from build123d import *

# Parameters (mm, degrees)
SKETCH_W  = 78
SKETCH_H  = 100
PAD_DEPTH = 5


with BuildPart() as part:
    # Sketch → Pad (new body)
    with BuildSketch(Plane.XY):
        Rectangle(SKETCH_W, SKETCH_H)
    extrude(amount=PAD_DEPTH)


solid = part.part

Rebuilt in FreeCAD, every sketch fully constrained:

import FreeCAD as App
import Part
import Sketcher
from FreeCAD import Vector


def add_polygon(sketch, points):
    """Adds a closed chain of lines whose ends are joined by coincident constraints."""
    first, n = sketch.GeometryCount, len(points)
    for a, b in zip(points, points[1:] + points[:1]):
        sketch.addGeometry(Part.LineSegment(App.Vector(*a, 0), App.Vector(*b, 0)), False)
    for i in range(n):
        sketch.addConstraint(Sketcher.Constraint("Coincident", first + i, 2, first + (i + 1) % n, 1))

doc = App.newDocument("Part")
body = doc.addObject("PartDesign::Body", "Body")

# Sketch on XY plane
sketch1 = body.newObject("Sketcher::SketchObject", "Sketch")
sketch1.AttachmentSupport = (doc.getObject("XY_Plane"), [""])
sketch1.MapMode = "FlatFace"
add_polygon(sketch1, [(-39, 50), (-39, -50), (39, -50), (39, 50)])  # lines 0-3
sketch1.addConstraint([
    Sketcher.Constraint("Vertical", 0),
    Sketcher.Constraint("Horizontal", 1),
    Sketcher.Constraint("Vertical", 2),
    Sketcher.Constraint("Horizontal", 3),
    Sketcher.Constraint("Symmetric", 0, 2, 2, 2, -1, 1),
    Sketcher.Constraint("DistanceX", 1, 1, 1, 2, 78.0),
    Sketcher.Constraint("DistanceY", 0, 2, 0, 1, 100.0),
])
pad1 = body.newObject("PartDesign::Pad", "Pad")
pad1.Profile = sketch1
pad1.Length = 5

doc.recompute()
